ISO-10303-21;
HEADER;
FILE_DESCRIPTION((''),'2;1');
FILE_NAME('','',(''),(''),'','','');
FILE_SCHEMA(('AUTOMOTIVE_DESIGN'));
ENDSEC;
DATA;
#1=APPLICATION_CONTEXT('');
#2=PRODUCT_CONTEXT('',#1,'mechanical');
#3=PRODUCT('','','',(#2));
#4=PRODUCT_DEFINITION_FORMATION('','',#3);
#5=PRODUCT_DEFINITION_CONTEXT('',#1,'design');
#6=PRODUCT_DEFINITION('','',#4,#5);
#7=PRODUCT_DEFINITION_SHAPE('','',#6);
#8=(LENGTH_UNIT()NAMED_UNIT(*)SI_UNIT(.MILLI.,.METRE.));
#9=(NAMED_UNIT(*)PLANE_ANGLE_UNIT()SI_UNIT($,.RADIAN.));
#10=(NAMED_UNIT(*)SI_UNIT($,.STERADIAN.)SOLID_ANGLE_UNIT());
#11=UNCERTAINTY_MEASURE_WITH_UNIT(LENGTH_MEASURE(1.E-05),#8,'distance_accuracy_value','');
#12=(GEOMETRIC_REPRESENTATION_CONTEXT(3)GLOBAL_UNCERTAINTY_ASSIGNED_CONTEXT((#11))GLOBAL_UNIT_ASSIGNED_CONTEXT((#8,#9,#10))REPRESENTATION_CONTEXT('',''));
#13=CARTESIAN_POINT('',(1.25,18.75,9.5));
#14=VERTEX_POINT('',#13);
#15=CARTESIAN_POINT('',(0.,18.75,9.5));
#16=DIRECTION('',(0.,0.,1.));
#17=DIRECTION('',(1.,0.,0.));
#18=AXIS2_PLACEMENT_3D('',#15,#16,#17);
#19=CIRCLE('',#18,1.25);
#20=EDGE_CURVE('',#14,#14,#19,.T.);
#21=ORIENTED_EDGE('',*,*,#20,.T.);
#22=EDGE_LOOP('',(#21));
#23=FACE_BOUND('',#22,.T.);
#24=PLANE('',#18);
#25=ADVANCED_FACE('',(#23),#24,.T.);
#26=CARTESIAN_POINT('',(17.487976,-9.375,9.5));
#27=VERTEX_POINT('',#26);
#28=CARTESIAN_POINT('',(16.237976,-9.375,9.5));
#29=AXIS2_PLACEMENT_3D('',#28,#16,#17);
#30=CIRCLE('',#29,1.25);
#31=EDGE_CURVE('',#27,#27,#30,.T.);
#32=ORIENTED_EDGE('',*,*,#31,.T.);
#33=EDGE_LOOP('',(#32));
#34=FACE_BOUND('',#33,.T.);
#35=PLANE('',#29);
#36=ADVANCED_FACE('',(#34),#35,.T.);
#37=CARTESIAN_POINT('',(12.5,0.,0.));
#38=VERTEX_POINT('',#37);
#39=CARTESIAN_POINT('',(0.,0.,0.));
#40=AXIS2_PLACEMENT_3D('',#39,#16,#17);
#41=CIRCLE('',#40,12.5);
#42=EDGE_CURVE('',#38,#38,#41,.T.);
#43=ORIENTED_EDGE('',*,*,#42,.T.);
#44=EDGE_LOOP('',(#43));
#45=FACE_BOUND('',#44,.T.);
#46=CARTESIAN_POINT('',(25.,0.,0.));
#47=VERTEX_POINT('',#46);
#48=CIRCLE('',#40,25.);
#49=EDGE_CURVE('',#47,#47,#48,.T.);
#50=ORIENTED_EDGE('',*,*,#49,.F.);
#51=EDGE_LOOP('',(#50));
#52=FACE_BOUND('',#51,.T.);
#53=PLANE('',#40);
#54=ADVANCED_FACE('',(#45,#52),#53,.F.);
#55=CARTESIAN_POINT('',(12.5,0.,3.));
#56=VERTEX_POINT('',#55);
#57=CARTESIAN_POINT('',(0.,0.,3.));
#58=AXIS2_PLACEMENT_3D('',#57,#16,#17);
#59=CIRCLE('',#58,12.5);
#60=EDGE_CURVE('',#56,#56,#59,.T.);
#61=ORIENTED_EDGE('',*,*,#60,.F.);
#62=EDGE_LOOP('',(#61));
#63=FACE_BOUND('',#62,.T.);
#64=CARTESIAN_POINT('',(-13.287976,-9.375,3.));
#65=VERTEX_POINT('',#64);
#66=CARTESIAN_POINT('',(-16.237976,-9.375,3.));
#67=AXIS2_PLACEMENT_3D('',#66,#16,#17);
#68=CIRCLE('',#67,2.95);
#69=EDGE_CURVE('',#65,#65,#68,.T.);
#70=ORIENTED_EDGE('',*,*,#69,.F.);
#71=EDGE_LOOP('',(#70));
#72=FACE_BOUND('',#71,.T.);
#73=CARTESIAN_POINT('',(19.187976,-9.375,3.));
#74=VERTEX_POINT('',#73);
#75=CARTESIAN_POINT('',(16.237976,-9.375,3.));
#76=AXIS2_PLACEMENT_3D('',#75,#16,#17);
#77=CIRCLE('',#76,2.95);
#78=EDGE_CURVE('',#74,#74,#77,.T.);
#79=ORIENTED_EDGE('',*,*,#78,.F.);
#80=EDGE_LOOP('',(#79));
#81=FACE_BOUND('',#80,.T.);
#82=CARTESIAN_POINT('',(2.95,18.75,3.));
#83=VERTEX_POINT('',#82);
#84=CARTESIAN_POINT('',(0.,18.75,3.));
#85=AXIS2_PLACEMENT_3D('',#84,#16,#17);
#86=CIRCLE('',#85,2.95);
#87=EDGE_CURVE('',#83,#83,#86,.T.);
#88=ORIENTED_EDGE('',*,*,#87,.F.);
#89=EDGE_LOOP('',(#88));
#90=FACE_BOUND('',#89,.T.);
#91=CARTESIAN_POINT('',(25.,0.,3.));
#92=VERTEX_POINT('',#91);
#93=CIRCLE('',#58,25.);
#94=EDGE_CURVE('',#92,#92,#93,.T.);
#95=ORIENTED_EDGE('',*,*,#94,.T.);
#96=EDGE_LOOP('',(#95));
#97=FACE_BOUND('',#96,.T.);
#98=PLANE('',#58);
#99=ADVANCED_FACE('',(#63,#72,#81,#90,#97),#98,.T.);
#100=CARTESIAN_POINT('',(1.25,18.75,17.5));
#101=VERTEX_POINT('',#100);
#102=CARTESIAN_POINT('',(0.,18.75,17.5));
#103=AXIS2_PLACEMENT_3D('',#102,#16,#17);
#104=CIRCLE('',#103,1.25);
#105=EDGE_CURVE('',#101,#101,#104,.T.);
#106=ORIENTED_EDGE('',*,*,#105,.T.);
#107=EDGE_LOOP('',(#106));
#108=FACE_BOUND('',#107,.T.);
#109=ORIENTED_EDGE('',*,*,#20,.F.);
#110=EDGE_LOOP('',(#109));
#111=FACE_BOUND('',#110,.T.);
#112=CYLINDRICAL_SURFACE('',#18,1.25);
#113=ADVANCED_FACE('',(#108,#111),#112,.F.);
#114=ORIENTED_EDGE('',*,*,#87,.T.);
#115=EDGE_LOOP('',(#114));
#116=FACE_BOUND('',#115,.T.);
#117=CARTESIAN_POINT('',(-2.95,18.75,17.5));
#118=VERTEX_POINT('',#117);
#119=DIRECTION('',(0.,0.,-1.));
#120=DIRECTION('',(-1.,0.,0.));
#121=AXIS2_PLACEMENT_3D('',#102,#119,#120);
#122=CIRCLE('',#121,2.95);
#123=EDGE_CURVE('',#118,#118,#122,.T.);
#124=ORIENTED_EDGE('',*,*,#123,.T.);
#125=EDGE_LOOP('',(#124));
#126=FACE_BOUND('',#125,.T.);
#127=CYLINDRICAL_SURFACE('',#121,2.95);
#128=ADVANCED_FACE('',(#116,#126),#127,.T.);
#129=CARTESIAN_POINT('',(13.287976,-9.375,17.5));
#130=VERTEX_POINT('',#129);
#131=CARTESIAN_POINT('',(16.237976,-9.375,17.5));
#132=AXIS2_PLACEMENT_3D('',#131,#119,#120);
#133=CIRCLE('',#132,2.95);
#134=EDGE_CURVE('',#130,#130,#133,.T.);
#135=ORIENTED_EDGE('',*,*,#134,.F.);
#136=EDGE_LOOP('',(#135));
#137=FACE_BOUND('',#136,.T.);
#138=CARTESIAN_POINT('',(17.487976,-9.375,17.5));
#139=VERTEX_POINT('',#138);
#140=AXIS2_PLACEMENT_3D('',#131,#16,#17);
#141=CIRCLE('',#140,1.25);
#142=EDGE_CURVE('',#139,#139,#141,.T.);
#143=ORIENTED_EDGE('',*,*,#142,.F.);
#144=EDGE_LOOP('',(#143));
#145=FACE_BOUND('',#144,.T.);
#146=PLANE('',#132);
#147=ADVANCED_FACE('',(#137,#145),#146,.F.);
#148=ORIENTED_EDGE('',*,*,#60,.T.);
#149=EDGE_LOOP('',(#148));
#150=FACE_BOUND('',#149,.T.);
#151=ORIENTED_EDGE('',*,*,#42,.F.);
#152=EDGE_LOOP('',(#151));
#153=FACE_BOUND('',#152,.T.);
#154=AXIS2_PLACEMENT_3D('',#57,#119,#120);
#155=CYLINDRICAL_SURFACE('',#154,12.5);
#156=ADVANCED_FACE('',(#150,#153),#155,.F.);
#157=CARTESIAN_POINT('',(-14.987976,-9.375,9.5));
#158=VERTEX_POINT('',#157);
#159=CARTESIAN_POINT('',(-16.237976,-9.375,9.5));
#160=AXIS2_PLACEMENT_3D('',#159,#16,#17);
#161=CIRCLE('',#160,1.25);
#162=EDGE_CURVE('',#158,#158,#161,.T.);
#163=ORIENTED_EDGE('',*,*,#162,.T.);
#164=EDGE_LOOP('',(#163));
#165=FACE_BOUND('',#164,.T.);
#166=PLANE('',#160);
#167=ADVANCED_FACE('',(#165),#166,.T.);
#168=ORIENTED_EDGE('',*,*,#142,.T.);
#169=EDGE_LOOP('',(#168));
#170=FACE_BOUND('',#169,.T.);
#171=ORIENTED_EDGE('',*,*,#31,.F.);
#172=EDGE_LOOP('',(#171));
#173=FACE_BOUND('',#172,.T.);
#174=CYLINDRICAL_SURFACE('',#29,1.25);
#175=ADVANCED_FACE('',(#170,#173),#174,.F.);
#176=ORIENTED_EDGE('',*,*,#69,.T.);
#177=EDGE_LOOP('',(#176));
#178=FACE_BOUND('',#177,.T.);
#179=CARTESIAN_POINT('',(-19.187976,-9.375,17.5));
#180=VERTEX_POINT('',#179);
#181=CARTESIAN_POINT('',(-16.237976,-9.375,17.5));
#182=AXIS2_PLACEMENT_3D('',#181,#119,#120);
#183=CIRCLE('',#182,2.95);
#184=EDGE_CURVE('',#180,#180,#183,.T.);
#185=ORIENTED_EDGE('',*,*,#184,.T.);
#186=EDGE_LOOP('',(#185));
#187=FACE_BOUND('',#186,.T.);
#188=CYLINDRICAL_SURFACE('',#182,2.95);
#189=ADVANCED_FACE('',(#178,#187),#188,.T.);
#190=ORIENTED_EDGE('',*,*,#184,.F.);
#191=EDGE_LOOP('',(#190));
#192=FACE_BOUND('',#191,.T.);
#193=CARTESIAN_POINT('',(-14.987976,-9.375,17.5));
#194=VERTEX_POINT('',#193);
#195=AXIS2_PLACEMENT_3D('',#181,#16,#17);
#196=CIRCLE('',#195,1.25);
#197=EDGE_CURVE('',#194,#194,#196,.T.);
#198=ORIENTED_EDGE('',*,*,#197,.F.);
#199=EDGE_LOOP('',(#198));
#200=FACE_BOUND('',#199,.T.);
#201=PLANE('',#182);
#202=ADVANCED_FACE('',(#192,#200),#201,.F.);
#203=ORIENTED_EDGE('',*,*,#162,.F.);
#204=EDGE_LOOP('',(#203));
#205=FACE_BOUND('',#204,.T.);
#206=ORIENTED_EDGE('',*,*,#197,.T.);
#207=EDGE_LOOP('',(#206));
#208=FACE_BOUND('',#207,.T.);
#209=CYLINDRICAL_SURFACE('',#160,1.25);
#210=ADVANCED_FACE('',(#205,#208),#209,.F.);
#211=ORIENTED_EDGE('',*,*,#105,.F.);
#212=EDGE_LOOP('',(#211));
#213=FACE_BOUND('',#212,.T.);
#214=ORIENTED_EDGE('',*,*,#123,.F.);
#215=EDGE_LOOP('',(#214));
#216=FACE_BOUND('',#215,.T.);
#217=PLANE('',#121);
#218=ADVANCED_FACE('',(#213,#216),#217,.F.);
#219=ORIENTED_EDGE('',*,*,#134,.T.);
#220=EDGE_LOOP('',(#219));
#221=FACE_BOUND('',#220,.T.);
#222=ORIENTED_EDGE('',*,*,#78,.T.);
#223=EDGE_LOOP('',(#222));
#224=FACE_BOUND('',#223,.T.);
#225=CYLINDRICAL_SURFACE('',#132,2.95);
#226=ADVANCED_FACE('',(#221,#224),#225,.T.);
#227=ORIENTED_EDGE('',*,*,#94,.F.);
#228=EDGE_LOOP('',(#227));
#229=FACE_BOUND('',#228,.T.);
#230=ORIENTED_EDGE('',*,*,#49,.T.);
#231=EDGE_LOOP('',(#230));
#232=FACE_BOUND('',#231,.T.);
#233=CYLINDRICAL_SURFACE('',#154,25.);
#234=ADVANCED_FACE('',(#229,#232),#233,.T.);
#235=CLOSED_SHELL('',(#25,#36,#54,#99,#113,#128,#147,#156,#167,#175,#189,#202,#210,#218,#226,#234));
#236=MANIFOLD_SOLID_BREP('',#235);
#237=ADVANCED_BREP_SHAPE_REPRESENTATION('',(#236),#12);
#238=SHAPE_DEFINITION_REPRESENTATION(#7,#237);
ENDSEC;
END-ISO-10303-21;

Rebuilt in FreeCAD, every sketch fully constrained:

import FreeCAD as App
import Part
import Sketcher

V = App.Vector

doc = App.newDocument("Part")
body = doc.addObject("PartDesign::Body", "Body")

# Sketch on XY plane
sketch1 = body.newObject("Sketcher::SketchObject", "Sketch")
sketch1.AttachmentSupport = (doc.getObject("XY_Plane"), [""])
sketch1.MapMode = "FlatFace"
sketch1.addGeometry(Part.Circle(V(0, 0, 0), V(0, 0, 1), 25), False)
sketch1.addGeometry(Part.Circle(V(-16.237976, -9.375, 0), V(0, 0, 1), 2.95), False)
sketch1.addGeometry(Part.Circle(V(0, 0, 0), V(0, 0, 1), 12.5), False)
sketch1.addGeometry(Part.Circle(V(16.237976, -9.375, 0), V(0, 0, 1), 2.95), False)
sketch1.addGeometry(Part.Circle(V(0, 18.75, 0), V(0, 0, 1), 2.95), False)
sketch1.addConstraint(Sketcher.Constraint("Coincident", 0, 3, -1, 1))
sketch1.addConstraint(Sketcher.Constraint("Coincident", 2, 3, -1, 1))
sketch1.addConstraint(Sketcher.Constraint("Equal", 1, 3))
sketch1.addConstraint(Sketcher.Constraint("Equal", 3, 4))
sketch1.addConstraint(Sketcher.Constraint("Symmetric", 1, 3, 3, 3, -2))
sketch1.addConstraint(Sketcher.Constraint("PointOnObject", 4, 3, -2))
sketch1.addConstraint(Sketcher.Constraint("Diameter", 0, 50.0))
sketch1.addConstraint(Sketcher.Constraint("Diameter", 2, 25.0))
sketch1.addConstraint(Sketcher.Constraint("Diameter", 1, 5.9))
sketch1.addConstraint(Sketcher.Constraint("DistanceY", -1, 1, 4, 3, 18.75))
sketch1.addConstraint(Sketcher.Constraint("DistanceY", 1, 3, -1, 1, 9.375))
sketch1.addConstraint(Sketcher.Constraint("DistanceX", 1, 3, -1, 1, 16.237976))
pad1 = body.newObject("PartDesign::Pad", "Pad")
pad1.Profile = sketch1
pad1.Length = 3

# Sketch on XY plane
sketch2 = body.newObject("Sketcher::SketchObject", "Sketch001")
sketch2.AttachmentSupport = (doc.getObject("XY_Plane"), [""])
sketch2.MapMode = "FlatFace"
sketch2.addGeometry(Part.Circle(V(-16.237976, -9.375, 0), V(0, 0, 1), 2.95), False)
sketch2.addGeometry(Part.Circle(V(0, 18.75, 0), V(0, 0, 1), 2.95), False)
sketch2.addGeometry(Part.Circle(V(16.237976, -9.375, 0), V(0, 0, 1), 2.95), False)
sketch2.addConstraint(Sketcher.Constraint("Equal", 0, 1))
sketch2.addConstraint(Sketcher.Constraint("Equal", 1, 2))
sketch2.addConstraint(Sketcher.Constraint("Symmetric", 0, 3, 2, 3, -2))
sketch2.addConstraint(Sketcher.Constraint("PointOnObject", 1, 3, -2))
sketch2.addConstraint(Sketcher.Constraint("Diameter", 0, 5.9))
sketch2.addConstraint(Sketcher.Constraint("DistanceY", -1, 1, 1, 3, 18.75))
sketch2.addConstraint(Sketcher.Constraint("DistanceY", 0, 3, -1, 1, 9.375))
sketch2.addConstraint(Sketcher.Constraint("DistanceX", 0, 3, -1, 1, 16.237976))
pad2 = body.newObject("PartDesign::Pad", "Pad001")
pad2.Profile = sketch2
pad2.Length = 17.5

# Sketch on XY plane
sketch3 = body.newObject("Sketcher::SketchObject", "Sketch002")
sketch3.AttachmentSupport = (doc.getObject("XY_Plane"), [""])
sketch3.MapMode = "FlatFace"
sketch3.AttachmentOffset = App.Placement(V(0, 0, 17.5), App.Rotation())
sketch3.addGeometry(Part.Circle(V(16.237976, -9.375, 0), V(0, 0, 1), 1.25), False)
sketch3.addGeometry(Part.Circle(V(-16.237976, -9.375, 0), V(0, 0, 1), 1.25), False)
sketch3.addGeometry(Part.Circle(V(0, 18.75, 0), V(0, 0, 1), 1.25), False)
sketch3.addConstraint(Sketcher.Constraint("Equal", 0, 1))
sketch3.addConstraint(Sketcher.Constraint("Equal", 1, 2))
sketch3.addConstraint(Sketcher.Constraint("Symmetric", 0, 3, 1, 3, -2))
sketch3.addConstraint(Sketcher.Constraint("PointOnObject", 2, 3, -2))
sketch3.addConstraint(Sketcher.Constraint("Diameter", 0, 2.5))
sketch3.addConstraint(Sketcher.Constraint("DistanceY", -1, 1, 2, 3, 18.75))
sketch3.addConstraint(Sketcher.Constraint("DistanceY", 0, 3, -1, 1, 9.375))
sketch3.addConstraint(Sketcher.Constraint("DistanceX", -1, 1, 0, 3, 16.237976))
pocket1 = body.newObject("PartDesign::Pocket", "Pocket")
pocket1.Profile = sketch3
pocket1.Length = 8

doc.recompute()
